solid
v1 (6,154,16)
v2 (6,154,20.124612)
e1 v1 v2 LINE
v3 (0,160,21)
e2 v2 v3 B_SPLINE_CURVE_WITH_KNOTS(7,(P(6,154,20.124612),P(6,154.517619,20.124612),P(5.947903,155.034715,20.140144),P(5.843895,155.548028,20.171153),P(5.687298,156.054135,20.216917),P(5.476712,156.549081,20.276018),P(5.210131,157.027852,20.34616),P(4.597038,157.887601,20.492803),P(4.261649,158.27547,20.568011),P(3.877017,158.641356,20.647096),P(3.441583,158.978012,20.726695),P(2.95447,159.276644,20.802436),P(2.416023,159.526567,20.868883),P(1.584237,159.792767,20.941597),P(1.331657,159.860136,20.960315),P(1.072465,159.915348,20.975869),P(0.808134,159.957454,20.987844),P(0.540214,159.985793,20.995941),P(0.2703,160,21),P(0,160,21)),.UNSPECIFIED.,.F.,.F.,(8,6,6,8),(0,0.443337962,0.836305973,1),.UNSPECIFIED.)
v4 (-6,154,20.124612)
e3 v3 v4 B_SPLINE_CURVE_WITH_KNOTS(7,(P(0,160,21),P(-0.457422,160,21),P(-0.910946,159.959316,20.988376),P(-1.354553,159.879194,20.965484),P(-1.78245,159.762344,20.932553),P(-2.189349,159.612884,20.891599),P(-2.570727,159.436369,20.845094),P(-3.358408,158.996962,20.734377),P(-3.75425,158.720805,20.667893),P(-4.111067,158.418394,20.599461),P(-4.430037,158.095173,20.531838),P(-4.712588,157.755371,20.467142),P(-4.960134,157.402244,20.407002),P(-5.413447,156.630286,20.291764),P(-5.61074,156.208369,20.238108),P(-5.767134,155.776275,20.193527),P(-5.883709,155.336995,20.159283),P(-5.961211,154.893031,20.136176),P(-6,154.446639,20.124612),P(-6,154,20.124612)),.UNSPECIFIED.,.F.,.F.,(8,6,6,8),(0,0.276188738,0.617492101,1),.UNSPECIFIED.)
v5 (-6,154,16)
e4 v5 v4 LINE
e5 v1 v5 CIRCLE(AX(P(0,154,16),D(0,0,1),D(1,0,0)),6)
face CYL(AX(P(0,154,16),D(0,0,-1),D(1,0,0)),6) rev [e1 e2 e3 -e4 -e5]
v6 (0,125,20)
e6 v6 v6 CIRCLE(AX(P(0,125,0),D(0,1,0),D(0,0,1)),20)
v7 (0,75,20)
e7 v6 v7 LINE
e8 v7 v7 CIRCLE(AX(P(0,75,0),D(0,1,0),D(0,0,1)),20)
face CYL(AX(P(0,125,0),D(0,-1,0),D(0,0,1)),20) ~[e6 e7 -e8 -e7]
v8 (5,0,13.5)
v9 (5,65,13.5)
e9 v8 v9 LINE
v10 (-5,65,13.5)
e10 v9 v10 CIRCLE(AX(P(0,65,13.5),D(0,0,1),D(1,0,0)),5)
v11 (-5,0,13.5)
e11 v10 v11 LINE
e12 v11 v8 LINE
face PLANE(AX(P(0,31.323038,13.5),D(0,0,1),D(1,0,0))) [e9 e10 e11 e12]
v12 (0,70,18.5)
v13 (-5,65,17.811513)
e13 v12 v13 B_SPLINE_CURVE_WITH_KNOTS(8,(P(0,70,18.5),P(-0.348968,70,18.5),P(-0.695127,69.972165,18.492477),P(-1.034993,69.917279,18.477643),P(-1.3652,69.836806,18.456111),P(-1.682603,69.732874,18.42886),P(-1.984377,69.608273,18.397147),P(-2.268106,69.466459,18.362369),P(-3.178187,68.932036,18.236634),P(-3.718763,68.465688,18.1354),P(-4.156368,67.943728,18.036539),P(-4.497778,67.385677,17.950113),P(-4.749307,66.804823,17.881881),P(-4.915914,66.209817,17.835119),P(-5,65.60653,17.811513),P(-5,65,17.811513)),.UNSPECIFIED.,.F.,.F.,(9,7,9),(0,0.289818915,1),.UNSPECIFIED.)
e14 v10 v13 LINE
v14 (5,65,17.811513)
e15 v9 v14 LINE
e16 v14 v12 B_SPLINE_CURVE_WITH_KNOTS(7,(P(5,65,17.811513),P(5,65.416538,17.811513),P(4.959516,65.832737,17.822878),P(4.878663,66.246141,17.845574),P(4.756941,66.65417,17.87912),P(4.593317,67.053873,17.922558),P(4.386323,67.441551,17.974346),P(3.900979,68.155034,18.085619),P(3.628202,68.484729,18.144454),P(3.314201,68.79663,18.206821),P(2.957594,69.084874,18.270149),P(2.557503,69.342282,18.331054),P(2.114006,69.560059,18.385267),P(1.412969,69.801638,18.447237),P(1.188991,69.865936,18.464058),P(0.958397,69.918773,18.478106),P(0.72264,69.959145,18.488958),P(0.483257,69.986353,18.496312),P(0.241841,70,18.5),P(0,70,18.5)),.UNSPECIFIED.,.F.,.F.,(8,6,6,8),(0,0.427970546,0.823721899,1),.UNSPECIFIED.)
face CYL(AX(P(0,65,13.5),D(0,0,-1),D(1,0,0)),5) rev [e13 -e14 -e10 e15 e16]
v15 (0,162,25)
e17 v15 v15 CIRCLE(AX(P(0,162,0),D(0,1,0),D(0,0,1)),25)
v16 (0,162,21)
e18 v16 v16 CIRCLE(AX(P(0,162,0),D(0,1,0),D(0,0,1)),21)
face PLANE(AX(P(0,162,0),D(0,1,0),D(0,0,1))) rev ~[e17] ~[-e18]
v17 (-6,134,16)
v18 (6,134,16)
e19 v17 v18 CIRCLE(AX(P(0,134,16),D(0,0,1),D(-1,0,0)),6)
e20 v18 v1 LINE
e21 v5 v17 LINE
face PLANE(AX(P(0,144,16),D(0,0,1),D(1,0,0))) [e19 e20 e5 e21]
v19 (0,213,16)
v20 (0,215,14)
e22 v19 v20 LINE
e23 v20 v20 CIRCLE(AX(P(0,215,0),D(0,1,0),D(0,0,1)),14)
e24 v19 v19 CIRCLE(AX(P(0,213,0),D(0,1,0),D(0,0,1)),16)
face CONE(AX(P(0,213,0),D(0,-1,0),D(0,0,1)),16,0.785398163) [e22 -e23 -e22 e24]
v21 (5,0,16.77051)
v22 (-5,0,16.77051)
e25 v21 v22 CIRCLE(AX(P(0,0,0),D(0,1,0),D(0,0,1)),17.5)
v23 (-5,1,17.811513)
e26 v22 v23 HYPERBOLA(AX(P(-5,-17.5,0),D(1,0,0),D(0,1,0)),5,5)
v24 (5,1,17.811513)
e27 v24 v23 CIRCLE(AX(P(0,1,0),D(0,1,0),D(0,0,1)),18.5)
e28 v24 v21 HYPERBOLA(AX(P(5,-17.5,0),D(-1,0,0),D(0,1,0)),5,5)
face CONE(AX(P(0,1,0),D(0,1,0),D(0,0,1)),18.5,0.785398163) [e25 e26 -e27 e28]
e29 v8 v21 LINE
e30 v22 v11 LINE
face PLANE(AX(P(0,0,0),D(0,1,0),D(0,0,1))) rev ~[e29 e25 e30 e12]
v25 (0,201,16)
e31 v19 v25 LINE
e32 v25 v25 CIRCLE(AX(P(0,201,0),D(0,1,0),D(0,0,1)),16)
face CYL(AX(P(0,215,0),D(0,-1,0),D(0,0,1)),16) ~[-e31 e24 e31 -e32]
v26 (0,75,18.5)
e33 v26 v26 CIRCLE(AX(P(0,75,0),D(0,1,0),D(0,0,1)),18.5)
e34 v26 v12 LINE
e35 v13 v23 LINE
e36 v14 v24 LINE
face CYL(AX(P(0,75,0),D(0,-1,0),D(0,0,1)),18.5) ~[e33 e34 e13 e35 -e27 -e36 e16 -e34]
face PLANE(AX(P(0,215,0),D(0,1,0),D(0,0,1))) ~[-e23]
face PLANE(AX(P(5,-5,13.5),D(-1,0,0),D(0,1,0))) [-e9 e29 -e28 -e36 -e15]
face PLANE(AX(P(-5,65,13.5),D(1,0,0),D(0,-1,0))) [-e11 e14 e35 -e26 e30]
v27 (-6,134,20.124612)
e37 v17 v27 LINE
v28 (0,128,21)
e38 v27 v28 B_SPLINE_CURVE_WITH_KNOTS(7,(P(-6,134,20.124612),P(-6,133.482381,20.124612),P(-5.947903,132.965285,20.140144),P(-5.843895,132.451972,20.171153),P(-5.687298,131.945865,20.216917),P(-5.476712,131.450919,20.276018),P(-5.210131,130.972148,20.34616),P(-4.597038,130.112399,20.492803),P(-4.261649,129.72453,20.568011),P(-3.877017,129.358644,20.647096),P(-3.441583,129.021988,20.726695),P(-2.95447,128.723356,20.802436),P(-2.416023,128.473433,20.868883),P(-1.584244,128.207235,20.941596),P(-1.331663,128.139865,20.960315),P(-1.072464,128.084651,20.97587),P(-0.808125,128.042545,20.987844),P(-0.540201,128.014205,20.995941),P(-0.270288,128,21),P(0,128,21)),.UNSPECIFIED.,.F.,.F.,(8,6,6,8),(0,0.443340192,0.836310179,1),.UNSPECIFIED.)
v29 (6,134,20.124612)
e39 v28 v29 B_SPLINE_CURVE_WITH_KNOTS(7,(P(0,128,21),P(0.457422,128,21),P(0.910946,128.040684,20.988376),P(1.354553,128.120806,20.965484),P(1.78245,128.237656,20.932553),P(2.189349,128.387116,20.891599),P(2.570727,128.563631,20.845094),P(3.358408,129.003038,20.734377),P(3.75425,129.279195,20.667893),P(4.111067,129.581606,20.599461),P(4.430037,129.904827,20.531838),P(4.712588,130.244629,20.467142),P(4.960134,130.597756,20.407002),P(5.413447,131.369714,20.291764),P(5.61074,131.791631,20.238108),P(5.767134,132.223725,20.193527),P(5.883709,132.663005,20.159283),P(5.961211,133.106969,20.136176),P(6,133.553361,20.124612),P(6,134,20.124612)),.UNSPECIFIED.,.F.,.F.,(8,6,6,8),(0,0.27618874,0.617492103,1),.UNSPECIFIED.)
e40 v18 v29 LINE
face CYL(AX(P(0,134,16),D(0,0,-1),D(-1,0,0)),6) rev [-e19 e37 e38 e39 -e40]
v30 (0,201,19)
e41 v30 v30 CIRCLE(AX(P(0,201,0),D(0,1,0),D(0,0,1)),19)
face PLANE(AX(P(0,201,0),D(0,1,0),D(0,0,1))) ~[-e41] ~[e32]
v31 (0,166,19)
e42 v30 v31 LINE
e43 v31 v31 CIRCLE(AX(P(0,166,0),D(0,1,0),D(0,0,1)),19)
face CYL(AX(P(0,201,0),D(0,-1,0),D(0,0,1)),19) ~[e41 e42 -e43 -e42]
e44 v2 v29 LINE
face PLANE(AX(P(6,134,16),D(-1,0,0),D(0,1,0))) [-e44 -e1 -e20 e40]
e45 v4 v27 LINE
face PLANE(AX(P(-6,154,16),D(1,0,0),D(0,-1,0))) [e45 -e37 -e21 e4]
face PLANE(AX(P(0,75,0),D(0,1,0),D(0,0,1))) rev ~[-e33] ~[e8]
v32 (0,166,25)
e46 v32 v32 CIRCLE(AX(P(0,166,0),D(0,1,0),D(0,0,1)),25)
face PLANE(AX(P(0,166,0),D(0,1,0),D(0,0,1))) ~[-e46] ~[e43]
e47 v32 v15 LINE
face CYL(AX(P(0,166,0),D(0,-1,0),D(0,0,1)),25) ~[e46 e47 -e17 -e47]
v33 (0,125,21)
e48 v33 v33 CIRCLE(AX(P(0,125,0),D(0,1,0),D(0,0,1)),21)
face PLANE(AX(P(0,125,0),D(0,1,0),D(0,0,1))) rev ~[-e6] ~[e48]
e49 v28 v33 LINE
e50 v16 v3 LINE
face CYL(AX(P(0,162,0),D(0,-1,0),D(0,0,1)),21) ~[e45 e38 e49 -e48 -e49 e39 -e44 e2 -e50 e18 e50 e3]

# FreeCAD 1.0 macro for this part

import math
import FreeCAD as App
import Part
import Sketcher

V = App.Vector
Q = App.Units.Quantity


def edges_at(feature, points):
    """Names of the edges that pass closest to the given points."""
    edges = feature.Shape.Edges
    near = lambda p: min(range(len(edges)), key=lambda i: edges[i].distToShape(Part.Vertex(*p))[0])
    return sorted({f"Edge{near(p) + 1}" for p in points})

doc = App.newDocument("Part")
body = doc.addObject("PartDesign::Body", "Body")

sketch1 = body.newObject("Sketcher::SketchObject", "Sketch")
sketch1.AttachmentSupport = (doc.getObject("YZ_Plane"), [""])
sketch1.MapMode = "FlatFace"
sketch1.addGeometry([
    Part.LineSegment(V(0, 18.5, 0), V(0, 0, 0)),
    Part.LineSegment(V(0, 0, 0), V(215, 0, 0)),
    Part.LineSegment(V(215, 0, 0), V(215, 16, 0)),
    Part.LineSegment(V(215, 16, 0), V(201, 16, 0)),
    Part.LineSegment(V(201, 16, 0), V(201, 19, 0)),
    Part.LineSegment(V(201, 19, 0), V(166, 19, 0)),
    Part.LineSegment(V(166, 19, 0), V(166, 25, 0)),
    Part.LineSegment(V(166, 25, 0), V(162, 25, 0)),
    Part.LineSegment(V(162, 25, 0), V(162, 21, 0)),
    Part.LineSegment(V(162, 21, 0), V(125, 21, 0)),
    Part.LineSegment(V(125, 21, 0), V(125, 20, 0)),
    Part.LineSegment(V(125, 20, 0), V(75, 20, 0)),
    Part.LineSegment(V(75, 20, 0), V(75, 18.5, 0)),
    Part.LineSegment(V(75, 18.5, 0), V(0, 18.5, 0)),
], False)
sketch1.addConstraint([
    Sketcher.Constraint("Coincident", 0, 2, 1, 1),
    Sketcher.Constraint("Coincident", 1, 2, 2, 1),
    Sketcher.Constraint("Coincident", 2, 2, 3, 1),
    Sketcher.Constraint("Coincident", 3, 2, 4, 1),
    Sketcher.Constraint("Coincident", 4, 2, 5, 1),
    Sketcher.Constraint("Coincident", 5, 2, 6, 1),
    Sketcher.Constraint("Coincident", 6, 2, 7, 1),
    Sketcher.Constraint("Coincident", 7, 2, 8, 1),
    Sketcher.Constraint("Coincident", 8, 2, 9, 1),
    Sketcher.Constraint("Coincident", 9, 2, 10, 1),
    Sketcher.Constraint("Coincident", 10, 2, 11, 1),
    Sketcher.Constraint("Coincident", 11, 2, 12, 1),
    Sketcher.Constraint("Coincident", 12, 2, 13, 1),
    Sketcher.Constraint("Coincident", 13, 2, 0, 1),
    Sketcher.Constraint("Vertical", 0),
    Sketcher.Constraint("Horizontal", 1),
    Sketcher.Constraint("Vertical", 2),
    Sketcher.Constraint("Horizontal", 3),
    Sketcher.Constraint("Vertical", 4),
    Sketcher.Constraint("Horizontal", 5),
    Sketcher.Constraint("Vertical", 6),
    Sketcher.Constraint("Horizontal", 7),
    Sketcher.Constraint("Vertical", 8),
    Sketcher.Constraint("Horizontal", 9),
    Sketcher.Constraint("Vertical", 10),
    Sketcher.Constraint("Horizontal", 11),
    Sketcher.Constraint("Vertical", 12),
    Sketcher.Constraint("Horizontal", 13),
    Sketcher.Constraint("Coincident", 0, 2, -1, 1),
    Sketcher.Constraint("Equal", 7, 8),
    Sketcher.Constraint("DistanceX", 1, 1, 1, 2, Q("215 mm")),
    Sketcher.Constraint("DistanceX", 3, 2, 3, 1, Q("14 mm")),
    Sketcher.Constraint("DistanceX", 5, 2, 5, 1, Q("35 mm")),
    Sketcher.Constraint("DistanceX", 7, 2, 7, 1, Q("4 mm")),
    Sketcher.Constraint("DistanceX", 9, 2, 9, 1, Q("37 mm")),
    Sketcher.Constraint("DistanceX", 11, 2, 11, 1, Q("50 mm")),
    Sketcher.Constraint("DistanceY", 2, 1, 2, 2, Q("16 mm")),
    Sketcher.Constraint("DistanceY", 4, 1, 4, 2, Q("3 mm")),
    Sketcher.Constraint("DistanceY", 6, 1, 6, 2, Q("6 mm")),
    Sketcher.Constraint("DistanceY", 10, 2, 10, 1, Q("1 mm")),
    Sketcher.Constraint("DistanceY", 0, 2, 0, 1, Q("18.5 mm")),
])
revolution = body.newObject("PartDesign::Revolution", "Revolution")
revolution.Profile = sketch1
revolution.ReferenceAxis = (sketch1, ["H_Axis"])
revolution.Angle = 360
doc.recompute()

chamfer = body.newObject("PartDesign::Chamfer", "Chamfer")
chamfer.Base = (revolution, edges_at(revolution, [(0, 0, -18.5)]))
chamfer.Size = 1
doc.recompute()

chamfer2 = body.newObject("PartDesign::Chamfer", "Chamfer001")
chamfer2.Base = (chamfer, edges_at(chamfer, [(0, 215, -16)]))
chamfer2.Size = 2

sketch2 = body.newObject("Sketcher::SketchObject", "Sketch001")
sketch2.AttachmentSupport = (doc.getObject("XY_Plane"), [""])
sketch2.MapMode = "FlatFace"
sketch2.AttachmentOffset = App.Placement(V(0, 0, 13.5), App.Rotation())
sketch2.addGeometry([
    Part.LineSegment(V(5, -5, 0), V(5, 65, 0)),
    Part.ArcOfCircle(Part.Circle(V(0, 65, 0), V(0, 0, 1), 5), math.radians(0), math.radians(180)),
    Part.LineSegment(V(-5, 65, 0), V(-5, -5, 0)),
    Part.LineSegment(V(-5, -5, 0), V(5, -5, 0)),
], False)
sketch2.addConstraint([
    Sketcher.Constraint("Tangent", 0, 2, 1, 1),
    Sketcher.Constraint("Tangent", 1, 2, 2, 1),
    Sketcher.Constraint("Coincident", 2, 2, 3, 1),
    Sketcher.Constraint("Coincident", 3, 2, 0, 1),
    Sketcher.Constraint("Vertical", 0),
    Sketcher.Constraint("Vertical", 2),
    Sketcher.Constraint("Horizontal", 3),
    Sketcher.Constraint("PointOnObject", 1, 3, -2),
    Sketcher.Constraint("Radius", 1, Q("5 mm")),
    Sketcher.Constraint("DistanceY", 0, 1, 0, 2, Q("70 mm")),
    Sketcher.Constraint("DistanceY", -1, 1, 1, 3, Q("65 mm")),
])
pocket1 = body.newObject("PartDesign::Pocket", "Pocket")
pocket1.Profile = sketch2
pocket1.Type = "ThroughAll"
pocket1.Reversed = True

sketch3 = body.newObject("Sketcher::SketchObject", "Sketch002")
sketch3.AttachmentSupport = (doc.getObject("XY_Plane"), [""])
sketch3.MapMode = "FlatFace"
sketch3.AttachmentOffset = App.Placement(V(0, 0, 16), App.Rotation())
sketch3.addGeometry([
    Part.LineSegment(V(6, 134, 0), V(6, 154, 0)),
    Part.ArcOfCircle(Part.Circle(V(0, 154, 0), V(0, 0, 1), 6), math.radians(0), math.radians(180)),
    Part.LineSegment(V(-6, 154, 0), V(-6, 134, 0)),
    Part.ArcOfCircle(Part.Circle(V(0, 134, 0), V(0, 0, 1), 6), math.radians(180), math.radians(360)),
], False)
sketch3.addConstraint([
    Sketcher.Constraint("Tangent", 0, 2, 1, 1),
    Sketcher.Constraint("Tangent", 1, 2, 2, 1),
    Sketcher.Constraint("Tangent", 2, 2, 3, 1),
    Sketcher.Constraint("Tangent", 3, 2, 0, 1),
    Sketcher.Constraint("Vertical", 0),
    Sketcher.Constraint("Vertical", 2),
    Sketcher.Constraint("PointOnObject", 1, 3, -2),
    Sketcher.Constraint("Radius", 1, Q("6 mm")),
    Sketcher.Constraint("DistanceY", 0, 1, 0, 2, Q("20 mm")),
    Sketcher.Constraint("DistanceY", -1, 1, 1, 3, Q("154 mm")),
])
pocket2 = body.newObject("PartDesign::Pocket", "Pocket001")
pocket2.Profile = sketch3
pocket2.Type = "ThroughAll"
pocket2.Reversed = True

doc.recompute()
